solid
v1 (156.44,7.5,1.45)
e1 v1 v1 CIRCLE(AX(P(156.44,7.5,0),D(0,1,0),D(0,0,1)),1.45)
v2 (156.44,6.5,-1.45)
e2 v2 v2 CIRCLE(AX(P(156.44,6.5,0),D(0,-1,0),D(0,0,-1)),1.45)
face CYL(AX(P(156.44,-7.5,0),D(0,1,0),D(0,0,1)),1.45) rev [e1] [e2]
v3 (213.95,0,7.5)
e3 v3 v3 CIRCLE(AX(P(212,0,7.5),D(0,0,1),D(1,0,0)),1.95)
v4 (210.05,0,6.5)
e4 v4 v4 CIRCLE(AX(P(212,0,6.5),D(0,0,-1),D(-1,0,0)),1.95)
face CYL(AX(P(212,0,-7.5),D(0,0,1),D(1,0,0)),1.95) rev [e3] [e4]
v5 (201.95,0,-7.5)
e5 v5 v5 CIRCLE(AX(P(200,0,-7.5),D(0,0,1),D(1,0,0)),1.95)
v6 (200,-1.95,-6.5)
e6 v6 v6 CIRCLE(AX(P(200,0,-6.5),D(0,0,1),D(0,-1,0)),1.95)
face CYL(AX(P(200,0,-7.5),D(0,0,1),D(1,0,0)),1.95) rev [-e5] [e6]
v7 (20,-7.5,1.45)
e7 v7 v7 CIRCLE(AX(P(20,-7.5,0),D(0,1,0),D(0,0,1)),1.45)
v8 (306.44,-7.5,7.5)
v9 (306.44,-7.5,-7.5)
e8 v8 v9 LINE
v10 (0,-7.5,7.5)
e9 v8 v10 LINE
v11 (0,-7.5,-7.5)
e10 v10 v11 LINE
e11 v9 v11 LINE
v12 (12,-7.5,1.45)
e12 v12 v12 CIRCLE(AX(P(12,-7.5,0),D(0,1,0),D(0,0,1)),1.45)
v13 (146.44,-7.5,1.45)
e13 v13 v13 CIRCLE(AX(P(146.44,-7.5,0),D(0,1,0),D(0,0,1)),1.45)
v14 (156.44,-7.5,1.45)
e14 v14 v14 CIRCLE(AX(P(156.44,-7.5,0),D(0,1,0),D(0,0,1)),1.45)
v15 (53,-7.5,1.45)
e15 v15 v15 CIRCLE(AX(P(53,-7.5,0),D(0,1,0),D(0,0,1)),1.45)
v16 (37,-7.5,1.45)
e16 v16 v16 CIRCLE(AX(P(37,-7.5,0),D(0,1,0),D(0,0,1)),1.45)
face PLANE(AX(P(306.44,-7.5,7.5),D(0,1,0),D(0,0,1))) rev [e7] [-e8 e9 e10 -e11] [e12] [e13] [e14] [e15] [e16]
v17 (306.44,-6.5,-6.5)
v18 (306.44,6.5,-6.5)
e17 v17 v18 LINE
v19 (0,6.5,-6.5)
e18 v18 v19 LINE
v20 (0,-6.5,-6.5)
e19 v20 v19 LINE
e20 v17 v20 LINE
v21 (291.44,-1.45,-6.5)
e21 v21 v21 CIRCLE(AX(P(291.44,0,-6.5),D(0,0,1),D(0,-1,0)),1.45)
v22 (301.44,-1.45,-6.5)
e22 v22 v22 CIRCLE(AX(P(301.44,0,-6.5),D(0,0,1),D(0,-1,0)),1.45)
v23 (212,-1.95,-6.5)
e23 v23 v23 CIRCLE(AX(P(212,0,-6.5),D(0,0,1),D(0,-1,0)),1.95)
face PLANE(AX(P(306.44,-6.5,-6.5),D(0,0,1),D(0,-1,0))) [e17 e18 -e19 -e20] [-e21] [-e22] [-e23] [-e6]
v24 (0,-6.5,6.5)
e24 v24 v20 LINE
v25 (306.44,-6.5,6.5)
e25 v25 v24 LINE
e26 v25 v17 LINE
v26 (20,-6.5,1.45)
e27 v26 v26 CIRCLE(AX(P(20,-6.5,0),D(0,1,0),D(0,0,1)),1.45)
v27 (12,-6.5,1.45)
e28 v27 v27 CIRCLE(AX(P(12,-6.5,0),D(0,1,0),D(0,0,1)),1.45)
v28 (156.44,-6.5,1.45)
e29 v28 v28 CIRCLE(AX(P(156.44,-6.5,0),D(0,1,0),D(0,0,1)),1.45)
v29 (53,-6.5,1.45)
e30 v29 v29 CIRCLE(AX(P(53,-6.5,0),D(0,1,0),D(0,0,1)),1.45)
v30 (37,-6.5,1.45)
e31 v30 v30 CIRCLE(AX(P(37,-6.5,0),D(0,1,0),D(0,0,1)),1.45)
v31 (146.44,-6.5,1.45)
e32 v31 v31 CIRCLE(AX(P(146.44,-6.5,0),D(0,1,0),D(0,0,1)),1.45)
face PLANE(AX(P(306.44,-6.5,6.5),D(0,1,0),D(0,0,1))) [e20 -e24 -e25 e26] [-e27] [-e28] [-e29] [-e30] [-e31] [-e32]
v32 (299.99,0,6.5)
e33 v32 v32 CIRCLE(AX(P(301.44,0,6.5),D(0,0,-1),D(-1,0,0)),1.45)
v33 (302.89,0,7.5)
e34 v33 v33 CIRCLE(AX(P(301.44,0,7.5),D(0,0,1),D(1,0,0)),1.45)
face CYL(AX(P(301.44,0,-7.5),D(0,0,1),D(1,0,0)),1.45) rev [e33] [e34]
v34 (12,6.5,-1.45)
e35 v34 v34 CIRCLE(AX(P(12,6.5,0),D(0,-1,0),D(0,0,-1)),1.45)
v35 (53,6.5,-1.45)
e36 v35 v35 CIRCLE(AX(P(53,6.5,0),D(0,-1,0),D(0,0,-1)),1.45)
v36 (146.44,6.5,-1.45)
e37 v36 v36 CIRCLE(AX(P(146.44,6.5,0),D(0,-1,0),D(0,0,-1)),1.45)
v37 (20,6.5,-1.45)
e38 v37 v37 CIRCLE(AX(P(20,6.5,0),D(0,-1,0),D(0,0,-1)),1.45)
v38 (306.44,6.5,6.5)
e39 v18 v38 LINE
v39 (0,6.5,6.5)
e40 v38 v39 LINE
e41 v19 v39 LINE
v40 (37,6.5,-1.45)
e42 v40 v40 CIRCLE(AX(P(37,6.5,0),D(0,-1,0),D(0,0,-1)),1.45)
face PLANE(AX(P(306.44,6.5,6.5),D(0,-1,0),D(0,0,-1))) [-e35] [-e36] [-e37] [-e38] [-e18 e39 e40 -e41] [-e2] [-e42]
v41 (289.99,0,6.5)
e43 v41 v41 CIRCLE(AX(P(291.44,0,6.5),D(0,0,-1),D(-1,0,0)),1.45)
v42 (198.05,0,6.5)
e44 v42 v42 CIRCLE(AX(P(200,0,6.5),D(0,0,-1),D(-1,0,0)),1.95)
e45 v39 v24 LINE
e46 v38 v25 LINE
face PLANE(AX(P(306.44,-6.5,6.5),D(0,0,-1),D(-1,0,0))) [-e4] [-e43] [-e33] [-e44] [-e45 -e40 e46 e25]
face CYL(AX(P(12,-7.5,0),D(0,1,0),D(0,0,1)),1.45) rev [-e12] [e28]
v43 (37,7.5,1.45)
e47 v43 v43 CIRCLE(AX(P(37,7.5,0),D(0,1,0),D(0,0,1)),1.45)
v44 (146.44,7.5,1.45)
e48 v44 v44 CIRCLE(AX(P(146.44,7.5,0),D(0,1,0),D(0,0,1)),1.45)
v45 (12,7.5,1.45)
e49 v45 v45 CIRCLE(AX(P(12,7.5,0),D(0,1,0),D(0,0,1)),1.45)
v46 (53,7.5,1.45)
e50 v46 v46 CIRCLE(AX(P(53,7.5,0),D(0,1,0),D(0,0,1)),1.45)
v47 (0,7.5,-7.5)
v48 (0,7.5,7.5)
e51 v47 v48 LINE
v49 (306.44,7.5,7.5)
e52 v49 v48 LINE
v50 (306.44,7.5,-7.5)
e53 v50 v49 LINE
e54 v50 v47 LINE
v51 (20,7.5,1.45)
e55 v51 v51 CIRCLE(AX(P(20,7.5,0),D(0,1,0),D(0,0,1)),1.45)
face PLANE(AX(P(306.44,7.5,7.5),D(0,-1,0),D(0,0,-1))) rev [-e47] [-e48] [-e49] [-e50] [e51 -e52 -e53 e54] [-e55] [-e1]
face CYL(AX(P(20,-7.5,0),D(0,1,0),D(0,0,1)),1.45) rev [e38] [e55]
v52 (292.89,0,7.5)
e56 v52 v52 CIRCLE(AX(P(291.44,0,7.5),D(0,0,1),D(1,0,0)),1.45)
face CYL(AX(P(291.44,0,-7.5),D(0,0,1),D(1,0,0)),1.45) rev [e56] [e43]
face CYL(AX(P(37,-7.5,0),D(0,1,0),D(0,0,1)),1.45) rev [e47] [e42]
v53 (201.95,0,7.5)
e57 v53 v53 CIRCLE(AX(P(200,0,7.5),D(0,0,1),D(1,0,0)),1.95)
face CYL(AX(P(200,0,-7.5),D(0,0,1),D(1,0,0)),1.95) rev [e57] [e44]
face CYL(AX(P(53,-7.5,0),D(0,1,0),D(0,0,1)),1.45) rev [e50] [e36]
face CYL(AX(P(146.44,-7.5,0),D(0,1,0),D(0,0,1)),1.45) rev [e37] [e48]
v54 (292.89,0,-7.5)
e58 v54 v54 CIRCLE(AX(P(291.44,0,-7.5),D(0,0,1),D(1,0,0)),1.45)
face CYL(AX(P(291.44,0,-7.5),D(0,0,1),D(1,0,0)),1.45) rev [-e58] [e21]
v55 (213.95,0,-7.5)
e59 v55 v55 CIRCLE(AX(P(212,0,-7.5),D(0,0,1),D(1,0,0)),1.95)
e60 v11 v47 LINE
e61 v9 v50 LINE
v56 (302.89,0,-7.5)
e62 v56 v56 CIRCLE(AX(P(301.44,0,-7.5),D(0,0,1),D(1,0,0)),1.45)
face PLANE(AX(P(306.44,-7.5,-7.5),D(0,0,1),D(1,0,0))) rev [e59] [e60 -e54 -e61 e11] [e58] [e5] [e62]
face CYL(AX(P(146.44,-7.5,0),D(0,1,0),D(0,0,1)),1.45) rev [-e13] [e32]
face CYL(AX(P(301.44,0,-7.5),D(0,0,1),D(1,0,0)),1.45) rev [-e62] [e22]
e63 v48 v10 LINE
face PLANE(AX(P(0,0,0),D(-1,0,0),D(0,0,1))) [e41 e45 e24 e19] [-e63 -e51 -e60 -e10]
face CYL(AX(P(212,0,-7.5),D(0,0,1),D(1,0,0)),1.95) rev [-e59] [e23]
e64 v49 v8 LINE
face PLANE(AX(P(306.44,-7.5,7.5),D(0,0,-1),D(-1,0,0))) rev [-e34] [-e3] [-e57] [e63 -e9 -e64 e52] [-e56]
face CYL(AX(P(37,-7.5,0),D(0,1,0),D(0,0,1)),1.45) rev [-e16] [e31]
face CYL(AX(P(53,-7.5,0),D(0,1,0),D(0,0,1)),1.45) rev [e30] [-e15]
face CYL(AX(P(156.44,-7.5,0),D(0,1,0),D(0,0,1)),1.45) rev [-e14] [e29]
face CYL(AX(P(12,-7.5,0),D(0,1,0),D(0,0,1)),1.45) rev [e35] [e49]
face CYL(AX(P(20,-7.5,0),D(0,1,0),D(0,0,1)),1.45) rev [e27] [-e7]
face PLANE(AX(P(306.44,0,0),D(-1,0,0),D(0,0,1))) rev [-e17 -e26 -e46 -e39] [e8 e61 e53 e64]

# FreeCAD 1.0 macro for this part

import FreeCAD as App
import Part
import Sketcher

V = App.Vector
Q = App.Units.Quantity


def add_polygon(sketch, points):
    """Adds a closed chain of lines whose ends are joined by coincident constraints."""
    first, n = sketch.GeometryCount, len(points)
    for a, b in zip(points, points[1:] + points[:1]):
        sketch.addGeometry(Part.LineSegment(App.Vector(*a, 0), App.Vector(*b, 0)), False)
    for i in range(n):
        sketch.addConstraint(Sketcher.Constraint("Coincident", first + i, 2, first + (i + 1) % n, 1))

doc = App.newDocument("Part")
body = doc.addObject("PartDesign::Body", "Body")

sketch1 = body.newObject("Sketcher::SketchObject", "Sketch")
sketch1.AttachmentSupport = (doc.getObject("YZ_Plane"), [""])
sketch1.MapMode = "FlatFace"
add_polygon(sketch1, [(8, 8), (-8, 8), (-8, -8), (8, -8)])
add_polygon(sketch1, [(-6, -6), (-6, 6), (6, 6), (6, -6)])
sketch1.addConstraint([
    Sketcher.Constraint("Horizontal", 0),
    Sketcher.Constraint("Vertical", 1),
    Sketcher.Constraint("Horizontal", 2),
    Sketcher.Constraint("Vertical", 3),
    Sketcher.Constraint("Vertical", 4),
    Sketcher.Constraint("Horizontal", 5),
    Sketcher.Constraint("Vertical", 6),
    Sketcher.Constraint("Horizontal", 7),
    Sketcher.Constraint("Symmetric", 0, 2, 2, 2, -1, 1),
    Sketcher.Constraint("Symmetric", 4, 2, 6, 2, -1, 1),
    Sketcher.Constraint("Equal", 2, 1),
    Sketcher.Constraint("Equal", 7, 4),
    Sketcher.Constraint("DistanceX", 0, 2, 0, 1, Q("15 mm")),
    Sketcher.Constraint("DistanceX", 5, 1, 5, 2, Q("13 mm")),
])
pad1 = body.newObject("PartDesign::Pad", "Pad")
pad1.Profile = sketch1
pad1.Length = 306.44

sketch2 = body.newObject("Sketcher::SketchObject", "Sketch001")
sketch2.AttachmentSupport = (doc.getObject("XZ_Plane"), [""])
sketch2.MapMode = "FlatFace"
sketch2.AttachmentOffset = App.Placement(V(0, 0, -7.5), App.Rotation())
sketch2.addGeometry([
    Part.Circle(V(20, 0, 0), V(0, 0, 1), 1.4),
    Part.Circle(V(12, 0, 0), V(0, 0, 1), 1.4),
    Part.Circle(V(37, 0, 0), V(0, 0, 1), 1.4),
    Part.Circle(V(53, 0, 0), V(0, 0, 1), 1.4),
    Part.Circle(V(156.4, 0, 0), V(0, 0, 1), 1.4),
    Part.Circle(V(146.4, 0, 0), V(0, 0, 1), 1.4),
], False)
sketch2.addConstraint([
    Sketcher.Constraint("Equal", 0, 1),
    Sketcher.Constraint("Equal", 1, 2),
    Sketcher.Constraint("Equal", 2, 3),
    Sketcher.Constraint("Equal", 3, 4),
    Sketcher.Constraint("Equal", 4, 5),
    Sketcher.Constraint("PointOnObject", 0, 3, -1),
    Sketcher.Constraint("PointOnObject", 1, 3, -1),
    Sketcher.Constraint("PointOnObject", 2, 3, -1),
    Sketcher.Constraint("PointOnObject", 3, 3, -1),
    Sketcher.Constraint("PointOnObject", 4, 3, -1),
    Sketcher.Constraint("PointOnObject", 5, 3, -1),
    Sketcher.Constraint("Diameter", 0, Q("2.9 mm")),
    Sketcher.Constraint("DistanceX", -1, 1, 0, 3, Q("20 mm")),
    Sketcher.Constraint("DistanceX", -1, 1, 1, 3, Q("12 mm")),
    Sketcher.Constraint("DistanceX", -1, 1, 2, 3, Q("37 mm")),
    Sketcher.Constraint("DistanceX", -1, 1, 3, 3, Q("53 mm")),
    Sketcher.Constraint("DistanceX", 5, 3, 4, 3, Q("10 mm")),
    Sketcher.Constraint("DistanceX", -1, 1, 4, 3, Q("156.44 mm")),
])
pocket1 = body.newObject("PartDesign::Pocket", "Pocket")
pocket1.Profile = sketch2
pocket1.Type = "ThroughAll"
pocket1.Reversed = True

sketch3 = body.newObject("Sketcher::SketchObject", "Sketch002")
sketch3.AttachmentSupport = (doc.getObject("XY_Plane"), [""])
sketch3.MapMode = "FlatFace"
sketch3.AttachmentOffset = App.Placement(V(0, 0, 7.5), App.Rotation())
sketch3.addGeometry([
    Part.Circle(V(301.4, 0, 0), V(0, 0, 1), 1.4),
    Part.Circle(V(291.4, 0, 0), V(0, 0, 1), 1.4),
    Part.Circle(V(200, 0, 0), V(0, 0, 1), 1.9),
    Part.Circle(V(212, 0, 0), V(0, 0, 1), 1.9),
], False)
sketch3.addConstraint([
    Sketcher.Constraint("Equal", 0, 1),
    Sketcher.Constraint("Equal", 2, 3),
    Sketcher.Constraint("PointOnObject", 0, 3, -1),
    Sketcher.Constraint("PointOnObject", 1, 3, -1),
    Sketcher.Constraint("PointOnObject", 2, 3, -1),
    Sketcher.Constraint("PointOnObject", 3, 3, -1),
    Sketcher.Constraint("Diameter", 0, Q("2.9 mm")),
    Sketcher.Constraint("Diameter", 2, Q("3.9 mm")),
    Sketcher.Constraint("DistanceX", -1, 1, 2, 3, Q("200 mm")),
    Sketcher.Constraint("DistanceX", -1, 1, 3, 3, Q("212 mm")),
    Sketcher.Constraint("DistanceX", 1, 3, 0, 3, Q("10 mm")),
    Sketcher.Constraint("DistanceX", -1, 1, 0, 3, Q("301.44 mm")),
])
pocket2 = body.newObject("PartDesign::Pocket", "Pocket001")
pocket2.Profile = sketch3
pocket2.Type = "ThroughAll"

doc.recompute()
